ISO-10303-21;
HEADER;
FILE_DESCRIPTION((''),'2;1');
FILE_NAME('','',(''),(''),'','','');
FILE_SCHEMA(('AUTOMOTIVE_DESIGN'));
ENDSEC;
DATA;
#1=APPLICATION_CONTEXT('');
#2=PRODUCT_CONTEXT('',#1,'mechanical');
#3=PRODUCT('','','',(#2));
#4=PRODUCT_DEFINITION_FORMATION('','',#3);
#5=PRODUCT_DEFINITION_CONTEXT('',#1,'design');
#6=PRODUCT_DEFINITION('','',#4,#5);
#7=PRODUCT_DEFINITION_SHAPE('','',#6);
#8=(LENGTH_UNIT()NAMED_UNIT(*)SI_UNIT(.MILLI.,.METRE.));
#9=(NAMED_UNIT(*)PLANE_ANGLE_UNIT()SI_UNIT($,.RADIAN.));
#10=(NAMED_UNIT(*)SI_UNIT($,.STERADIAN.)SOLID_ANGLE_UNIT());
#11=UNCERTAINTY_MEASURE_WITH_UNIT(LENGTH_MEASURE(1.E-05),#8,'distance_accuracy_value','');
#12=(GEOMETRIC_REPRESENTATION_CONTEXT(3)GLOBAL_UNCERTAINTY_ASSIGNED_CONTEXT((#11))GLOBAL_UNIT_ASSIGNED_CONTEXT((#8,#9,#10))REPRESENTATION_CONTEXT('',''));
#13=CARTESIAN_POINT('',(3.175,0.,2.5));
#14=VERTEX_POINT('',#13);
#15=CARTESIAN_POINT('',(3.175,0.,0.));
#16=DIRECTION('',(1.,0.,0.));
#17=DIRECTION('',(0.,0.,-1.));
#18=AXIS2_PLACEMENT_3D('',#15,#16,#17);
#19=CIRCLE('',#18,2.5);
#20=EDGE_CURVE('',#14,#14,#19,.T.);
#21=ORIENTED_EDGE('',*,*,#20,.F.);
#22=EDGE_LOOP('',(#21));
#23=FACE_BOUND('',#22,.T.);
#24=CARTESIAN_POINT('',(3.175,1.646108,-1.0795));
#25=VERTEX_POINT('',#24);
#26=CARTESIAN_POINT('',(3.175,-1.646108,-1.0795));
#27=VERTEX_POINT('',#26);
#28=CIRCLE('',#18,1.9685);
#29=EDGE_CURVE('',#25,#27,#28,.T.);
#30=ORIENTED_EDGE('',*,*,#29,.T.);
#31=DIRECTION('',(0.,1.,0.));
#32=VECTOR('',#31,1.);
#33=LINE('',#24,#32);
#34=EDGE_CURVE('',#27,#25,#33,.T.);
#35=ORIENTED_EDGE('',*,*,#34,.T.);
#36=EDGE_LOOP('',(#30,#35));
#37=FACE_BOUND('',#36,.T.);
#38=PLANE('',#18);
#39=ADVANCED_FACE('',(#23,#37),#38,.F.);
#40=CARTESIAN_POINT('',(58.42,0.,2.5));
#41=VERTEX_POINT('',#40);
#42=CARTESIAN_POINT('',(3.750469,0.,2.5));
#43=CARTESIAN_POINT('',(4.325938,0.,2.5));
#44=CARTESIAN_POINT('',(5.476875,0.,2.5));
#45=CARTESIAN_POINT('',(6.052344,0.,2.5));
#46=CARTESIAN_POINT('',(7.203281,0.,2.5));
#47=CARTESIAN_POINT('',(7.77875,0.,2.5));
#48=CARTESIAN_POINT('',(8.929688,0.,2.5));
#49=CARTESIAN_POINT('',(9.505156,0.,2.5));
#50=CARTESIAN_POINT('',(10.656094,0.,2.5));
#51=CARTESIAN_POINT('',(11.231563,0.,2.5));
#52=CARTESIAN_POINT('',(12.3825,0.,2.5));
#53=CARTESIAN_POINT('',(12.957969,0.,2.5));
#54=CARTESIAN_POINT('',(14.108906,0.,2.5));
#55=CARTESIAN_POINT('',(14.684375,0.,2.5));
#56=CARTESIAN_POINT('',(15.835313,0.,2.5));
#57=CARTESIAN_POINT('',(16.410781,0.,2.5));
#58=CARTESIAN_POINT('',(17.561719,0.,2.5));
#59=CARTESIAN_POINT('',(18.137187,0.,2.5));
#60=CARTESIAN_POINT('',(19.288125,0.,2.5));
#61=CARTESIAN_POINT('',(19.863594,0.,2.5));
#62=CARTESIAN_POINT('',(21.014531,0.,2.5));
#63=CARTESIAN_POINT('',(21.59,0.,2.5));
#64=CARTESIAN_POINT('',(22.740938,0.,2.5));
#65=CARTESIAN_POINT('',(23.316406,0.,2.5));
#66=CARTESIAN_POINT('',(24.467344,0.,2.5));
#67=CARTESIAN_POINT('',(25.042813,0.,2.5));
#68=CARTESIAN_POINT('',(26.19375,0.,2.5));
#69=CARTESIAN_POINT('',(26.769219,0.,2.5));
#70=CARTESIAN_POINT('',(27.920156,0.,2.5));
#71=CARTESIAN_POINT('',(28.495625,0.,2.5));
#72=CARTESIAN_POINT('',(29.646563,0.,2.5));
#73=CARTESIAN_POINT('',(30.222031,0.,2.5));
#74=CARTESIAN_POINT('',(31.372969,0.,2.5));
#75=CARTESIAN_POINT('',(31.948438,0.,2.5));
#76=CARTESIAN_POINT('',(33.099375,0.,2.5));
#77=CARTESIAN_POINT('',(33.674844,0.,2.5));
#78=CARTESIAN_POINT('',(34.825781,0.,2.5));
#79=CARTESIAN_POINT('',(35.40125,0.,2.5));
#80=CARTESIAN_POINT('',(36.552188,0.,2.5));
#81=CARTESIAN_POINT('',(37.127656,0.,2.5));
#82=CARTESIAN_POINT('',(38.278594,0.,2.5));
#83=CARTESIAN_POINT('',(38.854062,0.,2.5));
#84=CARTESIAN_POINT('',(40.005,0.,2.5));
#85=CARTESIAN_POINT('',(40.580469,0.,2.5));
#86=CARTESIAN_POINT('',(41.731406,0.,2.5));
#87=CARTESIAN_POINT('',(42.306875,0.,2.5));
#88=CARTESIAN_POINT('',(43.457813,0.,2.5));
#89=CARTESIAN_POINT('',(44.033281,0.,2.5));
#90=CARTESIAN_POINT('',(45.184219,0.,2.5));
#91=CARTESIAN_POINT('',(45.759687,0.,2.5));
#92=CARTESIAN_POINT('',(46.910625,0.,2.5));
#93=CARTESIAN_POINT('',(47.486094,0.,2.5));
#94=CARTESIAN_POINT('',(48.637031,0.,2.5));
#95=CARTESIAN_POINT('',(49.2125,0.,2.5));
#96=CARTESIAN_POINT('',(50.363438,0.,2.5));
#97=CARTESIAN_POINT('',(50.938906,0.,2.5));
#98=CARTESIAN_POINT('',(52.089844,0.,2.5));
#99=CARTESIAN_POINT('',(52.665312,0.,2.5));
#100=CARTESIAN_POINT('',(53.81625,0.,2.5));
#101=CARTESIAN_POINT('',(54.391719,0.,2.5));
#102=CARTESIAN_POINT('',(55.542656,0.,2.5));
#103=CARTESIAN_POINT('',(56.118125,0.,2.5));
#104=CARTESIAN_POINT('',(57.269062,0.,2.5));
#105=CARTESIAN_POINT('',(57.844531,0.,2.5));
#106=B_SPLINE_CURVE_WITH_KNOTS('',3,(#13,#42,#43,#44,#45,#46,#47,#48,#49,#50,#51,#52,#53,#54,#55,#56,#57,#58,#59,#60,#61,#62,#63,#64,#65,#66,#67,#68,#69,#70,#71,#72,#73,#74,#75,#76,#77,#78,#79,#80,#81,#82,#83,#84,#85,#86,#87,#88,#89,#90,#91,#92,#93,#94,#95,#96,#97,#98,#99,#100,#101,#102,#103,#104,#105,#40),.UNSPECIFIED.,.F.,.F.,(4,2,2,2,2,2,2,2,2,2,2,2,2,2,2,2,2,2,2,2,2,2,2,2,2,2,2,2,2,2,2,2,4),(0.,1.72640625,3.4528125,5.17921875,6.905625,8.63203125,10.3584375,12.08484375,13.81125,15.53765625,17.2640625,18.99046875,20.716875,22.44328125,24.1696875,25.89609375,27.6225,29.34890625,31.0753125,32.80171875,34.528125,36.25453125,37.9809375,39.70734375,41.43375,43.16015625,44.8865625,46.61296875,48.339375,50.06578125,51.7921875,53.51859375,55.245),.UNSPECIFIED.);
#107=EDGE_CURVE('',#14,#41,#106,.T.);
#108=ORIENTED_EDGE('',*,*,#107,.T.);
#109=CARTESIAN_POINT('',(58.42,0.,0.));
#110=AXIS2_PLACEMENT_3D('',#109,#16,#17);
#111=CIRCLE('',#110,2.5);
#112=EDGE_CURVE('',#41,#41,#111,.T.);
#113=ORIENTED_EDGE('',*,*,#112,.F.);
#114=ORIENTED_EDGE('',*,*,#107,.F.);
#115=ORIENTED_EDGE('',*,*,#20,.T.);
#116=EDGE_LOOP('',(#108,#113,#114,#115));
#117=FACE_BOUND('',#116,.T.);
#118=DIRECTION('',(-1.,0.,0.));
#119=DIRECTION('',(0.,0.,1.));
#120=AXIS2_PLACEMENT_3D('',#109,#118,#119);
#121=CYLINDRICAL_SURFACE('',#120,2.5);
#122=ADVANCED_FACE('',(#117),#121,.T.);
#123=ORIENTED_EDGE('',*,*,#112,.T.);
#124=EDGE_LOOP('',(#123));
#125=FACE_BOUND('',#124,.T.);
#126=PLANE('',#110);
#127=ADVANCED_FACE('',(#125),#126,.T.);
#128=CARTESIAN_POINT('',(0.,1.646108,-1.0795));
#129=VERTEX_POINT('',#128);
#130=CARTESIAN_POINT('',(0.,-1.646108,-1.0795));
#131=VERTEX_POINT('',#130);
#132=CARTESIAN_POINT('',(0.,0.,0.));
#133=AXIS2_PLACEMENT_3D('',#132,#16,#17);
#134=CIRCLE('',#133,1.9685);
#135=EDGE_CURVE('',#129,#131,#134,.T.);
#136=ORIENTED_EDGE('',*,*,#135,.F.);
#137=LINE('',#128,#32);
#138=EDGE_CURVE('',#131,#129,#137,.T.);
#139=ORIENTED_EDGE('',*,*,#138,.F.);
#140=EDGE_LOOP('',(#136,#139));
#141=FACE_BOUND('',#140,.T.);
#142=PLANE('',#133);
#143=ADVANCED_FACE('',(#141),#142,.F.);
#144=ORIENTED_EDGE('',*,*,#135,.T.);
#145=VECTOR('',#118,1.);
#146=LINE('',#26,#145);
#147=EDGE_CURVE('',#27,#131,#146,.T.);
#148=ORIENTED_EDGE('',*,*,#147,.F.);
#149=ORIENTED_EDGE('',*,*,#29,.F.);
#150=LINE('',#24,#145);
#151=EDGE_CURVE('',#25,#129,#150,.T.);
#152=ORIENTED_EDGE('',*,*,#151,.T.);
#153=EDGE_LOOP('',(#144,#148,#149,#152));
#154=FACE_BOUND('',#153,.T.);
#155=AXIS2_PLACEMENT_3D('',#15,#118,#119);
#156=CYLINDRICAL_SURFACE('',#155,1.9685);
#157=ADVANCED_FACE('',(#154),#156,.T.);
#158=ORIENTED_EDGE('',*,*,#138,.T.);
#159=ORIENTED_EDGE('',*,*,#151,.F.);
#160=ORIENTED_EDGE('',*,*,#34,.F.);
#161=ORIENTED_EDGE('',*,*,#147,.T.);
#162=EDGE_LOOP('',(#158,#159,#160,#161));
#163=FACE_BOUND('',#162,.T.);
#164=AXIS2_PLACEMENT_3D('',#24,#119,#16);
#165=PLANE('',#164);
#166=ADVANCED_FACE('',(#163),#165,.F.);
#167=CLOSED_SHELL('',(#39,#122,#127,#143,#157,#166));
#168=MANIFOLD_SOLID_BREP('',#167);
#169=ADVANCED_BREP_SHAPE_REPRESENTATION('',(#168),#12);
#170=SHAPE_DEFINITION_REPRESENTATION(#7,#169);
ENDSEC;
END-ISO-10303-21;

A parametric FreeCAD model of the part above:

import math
import FreeCAD as App
import Part
import Sketcher
Q = App.Units.Quantity


def add_polygon(sketch, points):
    """Adds a closed chain of lines whose ends are joined by coincident constraints."""
    first, n = sketch.GeometryCount, len(points)
    for a, b in zip(points, points[1:] + points[:1]):
        sketch.addGeometry(Part.LineSegment(App.Vector(*a, 0), App.Vector(*b, 0)), False)
    for i in range(n):
        sketch.addConstraint(Sketcher.Constraint("Coincident", first + i, 2, first + (i + 1) % n, 1))

doc = App.newDocument("Part")
body = doc.addObject("PartDesign::Body", "Body")

sketch1 = doc.addObject("Sketcher::SketchObject", "Sketch")
body.addObject(sketch1)
sketch1.AttachmentSupport = (doc.YZ_Plane, [""])
sketch1.MapMode = "FlatFace"
sketch1.addGeometry(Part.Circle(App.Vector(0, 0, 0), App.Vector(0, 0, 1), 2.5), False)
sketch1.addConstraint([
    Sketcher.Constraint("Coincident", 0, 3, -1, 1),
    Sketcher.Constraint("Diameter", 0, Q("5 mm")),
])
pad1 = doc.addObject("PartDesign::Pad", "Pad")
body.addObject(pad1)
pad1.Profile = sketch1
pad1.Length = Q("2.3 in")

sketch2 = doc.addObject("Sketcher::SketchObject", "Sketch001")
body.addObject(sketch2)
sketch2.AttachmentSupport = (doc.YZ_Plane, [""])
sketch2.MapMode = "FlatFace"
add_polygon(sketch2, [(9.4, 9.4), (-9.4, 9.4), (-9.4, -9.4), (9.4, -9.4)])
sketch2.addGeometry(Part.ArcOfCircle(Part.Circle(App.Vector(0, 0, 0), App.Vector(0, 0, 1), 2), math.radians(-33), math.radians(213)), False)
sketch2.addGeometry(Part.LineSegment(App.Vector(1.6, -1.1, 0), App.Vector(-1.6, -1.1, 0)), False)
sketch2.addConstraint([
    Sketcher.Constraint("Coincident", 4, 1, 5, 1),
    Sketcher.Constraint("Coincident", 5, 2, 4, 2),
    Sketcher.Constraint("Horizontal", 0),
    Sketcher.Constraint("Vertical", 1),
    Sketcher.Constraint("Horizontal", 2),
    Sketcher.Constraint("Vertical", 3),
    Sketcher.Constraint("Horizontal", 5),
    Sketcher.Constraint("Coincident", 4, 3, -1, 1),
    Sketcher.Constraint("Symmetric", 0, 2, 2, 2, -1, 1),
    Sketcher.Constraint("Equal", 2, 1),
    Sketcher.Constraint("Radius", 4, Q("0.0775 in")),
    Sketcher.Constraint("DistanceX", 0, 2, 0, 1, Q("18.77 mm")),
    Sketcher.Constraint("DistanceY", 4, 1, -1, 1, Q("0.0425 in")),
])
pocket1 = doc.addObject("PartDesign::Pocket", "Pocket")
body.addObject(pocket1)
pocket1.Profile = sketch2
pocket1.Length = Q("0.125 in")
pocket1.Reversed = True

doc.recompute()
